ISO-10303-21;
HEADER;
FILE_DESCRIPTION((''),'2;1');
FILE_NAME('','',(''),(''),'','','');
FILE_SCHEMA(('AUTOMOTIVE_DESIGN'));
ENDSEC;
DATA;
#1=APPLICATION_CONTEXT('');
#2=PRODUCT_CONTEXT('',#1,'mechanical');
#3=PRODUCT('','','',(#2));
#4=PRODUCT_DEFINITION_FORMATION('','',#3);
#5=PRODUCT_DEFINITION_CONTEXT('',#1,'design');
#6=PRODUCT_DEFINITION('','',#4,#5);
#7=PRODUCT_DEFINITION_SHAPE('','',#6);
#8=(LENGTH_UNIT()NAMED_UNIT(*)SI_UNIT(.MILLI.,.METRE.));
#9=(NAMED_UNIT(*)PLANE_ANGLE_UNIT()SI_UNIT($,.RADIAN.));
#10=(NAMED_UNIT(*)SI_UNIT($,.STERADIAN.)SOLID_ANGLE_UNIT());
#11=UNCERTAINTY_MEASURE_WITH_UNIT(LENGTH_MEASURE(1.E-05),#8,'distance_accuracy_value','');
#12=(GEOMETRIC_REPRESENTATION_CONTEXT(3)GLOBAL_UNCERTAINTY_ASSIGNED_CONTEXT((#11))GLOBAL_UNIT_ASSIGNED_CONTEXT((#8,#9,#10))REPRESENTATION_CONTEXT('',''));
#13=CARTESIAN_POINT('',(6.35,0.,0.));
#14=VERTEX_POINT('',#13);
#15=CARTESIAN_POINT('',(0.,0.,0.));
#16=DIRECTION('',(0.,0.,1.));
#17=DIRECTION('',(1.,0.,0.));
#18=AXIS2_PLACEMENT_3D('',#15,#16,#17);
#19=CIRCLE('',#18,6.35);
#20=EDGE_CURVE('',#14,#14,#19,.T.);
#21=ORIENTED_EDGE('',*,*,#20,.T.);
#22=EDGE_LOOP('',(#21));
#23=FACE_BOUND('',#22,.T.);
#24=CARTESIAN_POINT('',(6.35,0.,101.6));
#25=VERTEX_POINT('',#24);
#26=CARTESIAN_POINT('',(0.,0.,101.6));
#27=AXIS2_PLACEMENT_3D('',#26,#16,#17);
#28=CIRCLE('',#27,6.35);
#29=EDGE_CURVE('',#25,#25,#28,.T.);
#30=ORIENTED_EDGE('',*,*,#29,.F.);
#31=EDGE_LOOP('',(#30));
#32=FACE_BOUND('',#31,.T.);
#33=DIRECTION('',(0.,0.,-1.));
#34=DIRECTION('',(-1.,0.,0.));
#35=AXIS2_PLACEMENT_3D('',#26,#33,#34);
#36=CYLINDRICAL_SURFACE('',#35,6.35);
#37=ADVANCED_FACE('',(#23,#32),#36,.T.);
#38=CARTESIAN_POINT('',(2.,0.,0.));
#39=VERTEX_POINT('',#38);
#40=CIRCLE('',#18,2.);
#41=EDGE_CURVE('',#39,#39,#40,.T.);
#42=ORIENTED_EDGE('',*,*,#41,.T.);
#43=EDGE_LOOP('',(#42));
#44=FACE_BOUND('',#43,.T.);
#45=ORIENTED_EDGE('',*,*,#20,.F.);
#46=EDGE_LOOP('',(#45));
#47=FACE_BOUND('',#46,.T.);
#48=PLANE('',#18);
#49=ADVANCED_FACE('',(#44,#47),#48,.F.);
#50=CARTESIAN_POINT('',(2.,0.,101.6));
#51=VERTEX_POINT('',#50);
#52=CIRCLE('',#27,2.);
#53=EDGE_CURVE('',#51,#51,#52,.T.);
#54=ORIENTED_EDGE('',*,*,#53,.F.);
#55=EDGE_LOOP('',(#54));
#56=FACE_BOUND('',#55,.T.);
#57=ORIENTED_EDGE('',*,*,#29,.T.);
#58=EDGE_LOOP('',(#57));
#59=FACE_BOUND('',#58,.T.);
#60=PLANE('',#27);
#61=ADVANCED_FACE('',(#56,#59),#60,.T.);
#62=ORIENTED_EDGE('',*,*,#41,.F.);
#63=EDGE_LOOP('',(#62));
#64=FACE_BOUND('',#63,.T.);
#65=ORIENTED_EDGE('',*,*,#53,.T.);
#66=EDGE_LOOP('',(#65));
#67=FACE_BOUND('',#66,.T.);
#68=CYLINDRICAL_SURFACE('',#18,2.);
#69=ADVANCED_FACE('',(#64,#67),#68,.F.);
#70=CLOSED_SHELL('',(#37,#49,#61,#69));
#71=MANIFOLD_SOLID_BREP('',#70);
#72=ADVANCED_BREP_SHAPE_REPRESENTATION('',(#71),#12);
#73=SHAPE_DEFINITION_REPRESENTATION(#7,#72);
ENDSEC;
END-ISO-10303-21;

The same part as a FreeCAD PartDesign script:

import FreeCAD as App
import Part
import Sketcher
Q = App.Units.Quantity

doc = App.newDocument("Part")
body = doc.addObject("PartDesign::Body", "Body")

# Sketch on XY plane
sketch1 = body.newObject("Sketcher::SketchObject", "Sketch")
sketch1.AttachmentSupport = (doc.getObject("XY_Plane"), [""])
sketch1.MapMode = "FlatFace"
sketch1.addGeometry(Part.Circle(App.Vector(0, 0, 0), App.Vector(0, 0, 1), 6), False)
sketch1.addConstraint(Sketcher.Constraint("Coincident", 0, 3, -1, 1))
sketch1.addConstraint(Sketcher.Constraint("Diameter", 0, Q("12.7 mm")))
pad1 = body.newObject("PartDesign::Pad", "Pad")
pad1.Profile = sketch1
pad1.Length = 101.6

# Sketch on XY plane
sketch2 = body.newObject("Sketcher::SketchObject", "Sketch001")
sketch2.AttachmentSupport = (doc.getObject("XY_Plane"), [""])
sketch2.MapMode = "FlatFace"
sketch2.AttachmentOffset = App.Placement(App.Vector(0, 0, 101.6), App.Rotation())
sketch2.addGeometry(Part.Circle(App.Vector(0, 0, 0), App.Vector(0, 0, 1), 2), False)
sketch2.addConstraint(Sketcher.Constraint("Coincident", 0, 3, -1, 1))
sketch2.addConstraint(Sketcher.Constraint("Diameter", 0, Q("4 mm")))
pocket1 = body.newObject("PartDesign::Pocket", "Pocket")
pocket1.Profile = sketch2
pocket1.Type = "ThroughAll"

doc.recompute()
